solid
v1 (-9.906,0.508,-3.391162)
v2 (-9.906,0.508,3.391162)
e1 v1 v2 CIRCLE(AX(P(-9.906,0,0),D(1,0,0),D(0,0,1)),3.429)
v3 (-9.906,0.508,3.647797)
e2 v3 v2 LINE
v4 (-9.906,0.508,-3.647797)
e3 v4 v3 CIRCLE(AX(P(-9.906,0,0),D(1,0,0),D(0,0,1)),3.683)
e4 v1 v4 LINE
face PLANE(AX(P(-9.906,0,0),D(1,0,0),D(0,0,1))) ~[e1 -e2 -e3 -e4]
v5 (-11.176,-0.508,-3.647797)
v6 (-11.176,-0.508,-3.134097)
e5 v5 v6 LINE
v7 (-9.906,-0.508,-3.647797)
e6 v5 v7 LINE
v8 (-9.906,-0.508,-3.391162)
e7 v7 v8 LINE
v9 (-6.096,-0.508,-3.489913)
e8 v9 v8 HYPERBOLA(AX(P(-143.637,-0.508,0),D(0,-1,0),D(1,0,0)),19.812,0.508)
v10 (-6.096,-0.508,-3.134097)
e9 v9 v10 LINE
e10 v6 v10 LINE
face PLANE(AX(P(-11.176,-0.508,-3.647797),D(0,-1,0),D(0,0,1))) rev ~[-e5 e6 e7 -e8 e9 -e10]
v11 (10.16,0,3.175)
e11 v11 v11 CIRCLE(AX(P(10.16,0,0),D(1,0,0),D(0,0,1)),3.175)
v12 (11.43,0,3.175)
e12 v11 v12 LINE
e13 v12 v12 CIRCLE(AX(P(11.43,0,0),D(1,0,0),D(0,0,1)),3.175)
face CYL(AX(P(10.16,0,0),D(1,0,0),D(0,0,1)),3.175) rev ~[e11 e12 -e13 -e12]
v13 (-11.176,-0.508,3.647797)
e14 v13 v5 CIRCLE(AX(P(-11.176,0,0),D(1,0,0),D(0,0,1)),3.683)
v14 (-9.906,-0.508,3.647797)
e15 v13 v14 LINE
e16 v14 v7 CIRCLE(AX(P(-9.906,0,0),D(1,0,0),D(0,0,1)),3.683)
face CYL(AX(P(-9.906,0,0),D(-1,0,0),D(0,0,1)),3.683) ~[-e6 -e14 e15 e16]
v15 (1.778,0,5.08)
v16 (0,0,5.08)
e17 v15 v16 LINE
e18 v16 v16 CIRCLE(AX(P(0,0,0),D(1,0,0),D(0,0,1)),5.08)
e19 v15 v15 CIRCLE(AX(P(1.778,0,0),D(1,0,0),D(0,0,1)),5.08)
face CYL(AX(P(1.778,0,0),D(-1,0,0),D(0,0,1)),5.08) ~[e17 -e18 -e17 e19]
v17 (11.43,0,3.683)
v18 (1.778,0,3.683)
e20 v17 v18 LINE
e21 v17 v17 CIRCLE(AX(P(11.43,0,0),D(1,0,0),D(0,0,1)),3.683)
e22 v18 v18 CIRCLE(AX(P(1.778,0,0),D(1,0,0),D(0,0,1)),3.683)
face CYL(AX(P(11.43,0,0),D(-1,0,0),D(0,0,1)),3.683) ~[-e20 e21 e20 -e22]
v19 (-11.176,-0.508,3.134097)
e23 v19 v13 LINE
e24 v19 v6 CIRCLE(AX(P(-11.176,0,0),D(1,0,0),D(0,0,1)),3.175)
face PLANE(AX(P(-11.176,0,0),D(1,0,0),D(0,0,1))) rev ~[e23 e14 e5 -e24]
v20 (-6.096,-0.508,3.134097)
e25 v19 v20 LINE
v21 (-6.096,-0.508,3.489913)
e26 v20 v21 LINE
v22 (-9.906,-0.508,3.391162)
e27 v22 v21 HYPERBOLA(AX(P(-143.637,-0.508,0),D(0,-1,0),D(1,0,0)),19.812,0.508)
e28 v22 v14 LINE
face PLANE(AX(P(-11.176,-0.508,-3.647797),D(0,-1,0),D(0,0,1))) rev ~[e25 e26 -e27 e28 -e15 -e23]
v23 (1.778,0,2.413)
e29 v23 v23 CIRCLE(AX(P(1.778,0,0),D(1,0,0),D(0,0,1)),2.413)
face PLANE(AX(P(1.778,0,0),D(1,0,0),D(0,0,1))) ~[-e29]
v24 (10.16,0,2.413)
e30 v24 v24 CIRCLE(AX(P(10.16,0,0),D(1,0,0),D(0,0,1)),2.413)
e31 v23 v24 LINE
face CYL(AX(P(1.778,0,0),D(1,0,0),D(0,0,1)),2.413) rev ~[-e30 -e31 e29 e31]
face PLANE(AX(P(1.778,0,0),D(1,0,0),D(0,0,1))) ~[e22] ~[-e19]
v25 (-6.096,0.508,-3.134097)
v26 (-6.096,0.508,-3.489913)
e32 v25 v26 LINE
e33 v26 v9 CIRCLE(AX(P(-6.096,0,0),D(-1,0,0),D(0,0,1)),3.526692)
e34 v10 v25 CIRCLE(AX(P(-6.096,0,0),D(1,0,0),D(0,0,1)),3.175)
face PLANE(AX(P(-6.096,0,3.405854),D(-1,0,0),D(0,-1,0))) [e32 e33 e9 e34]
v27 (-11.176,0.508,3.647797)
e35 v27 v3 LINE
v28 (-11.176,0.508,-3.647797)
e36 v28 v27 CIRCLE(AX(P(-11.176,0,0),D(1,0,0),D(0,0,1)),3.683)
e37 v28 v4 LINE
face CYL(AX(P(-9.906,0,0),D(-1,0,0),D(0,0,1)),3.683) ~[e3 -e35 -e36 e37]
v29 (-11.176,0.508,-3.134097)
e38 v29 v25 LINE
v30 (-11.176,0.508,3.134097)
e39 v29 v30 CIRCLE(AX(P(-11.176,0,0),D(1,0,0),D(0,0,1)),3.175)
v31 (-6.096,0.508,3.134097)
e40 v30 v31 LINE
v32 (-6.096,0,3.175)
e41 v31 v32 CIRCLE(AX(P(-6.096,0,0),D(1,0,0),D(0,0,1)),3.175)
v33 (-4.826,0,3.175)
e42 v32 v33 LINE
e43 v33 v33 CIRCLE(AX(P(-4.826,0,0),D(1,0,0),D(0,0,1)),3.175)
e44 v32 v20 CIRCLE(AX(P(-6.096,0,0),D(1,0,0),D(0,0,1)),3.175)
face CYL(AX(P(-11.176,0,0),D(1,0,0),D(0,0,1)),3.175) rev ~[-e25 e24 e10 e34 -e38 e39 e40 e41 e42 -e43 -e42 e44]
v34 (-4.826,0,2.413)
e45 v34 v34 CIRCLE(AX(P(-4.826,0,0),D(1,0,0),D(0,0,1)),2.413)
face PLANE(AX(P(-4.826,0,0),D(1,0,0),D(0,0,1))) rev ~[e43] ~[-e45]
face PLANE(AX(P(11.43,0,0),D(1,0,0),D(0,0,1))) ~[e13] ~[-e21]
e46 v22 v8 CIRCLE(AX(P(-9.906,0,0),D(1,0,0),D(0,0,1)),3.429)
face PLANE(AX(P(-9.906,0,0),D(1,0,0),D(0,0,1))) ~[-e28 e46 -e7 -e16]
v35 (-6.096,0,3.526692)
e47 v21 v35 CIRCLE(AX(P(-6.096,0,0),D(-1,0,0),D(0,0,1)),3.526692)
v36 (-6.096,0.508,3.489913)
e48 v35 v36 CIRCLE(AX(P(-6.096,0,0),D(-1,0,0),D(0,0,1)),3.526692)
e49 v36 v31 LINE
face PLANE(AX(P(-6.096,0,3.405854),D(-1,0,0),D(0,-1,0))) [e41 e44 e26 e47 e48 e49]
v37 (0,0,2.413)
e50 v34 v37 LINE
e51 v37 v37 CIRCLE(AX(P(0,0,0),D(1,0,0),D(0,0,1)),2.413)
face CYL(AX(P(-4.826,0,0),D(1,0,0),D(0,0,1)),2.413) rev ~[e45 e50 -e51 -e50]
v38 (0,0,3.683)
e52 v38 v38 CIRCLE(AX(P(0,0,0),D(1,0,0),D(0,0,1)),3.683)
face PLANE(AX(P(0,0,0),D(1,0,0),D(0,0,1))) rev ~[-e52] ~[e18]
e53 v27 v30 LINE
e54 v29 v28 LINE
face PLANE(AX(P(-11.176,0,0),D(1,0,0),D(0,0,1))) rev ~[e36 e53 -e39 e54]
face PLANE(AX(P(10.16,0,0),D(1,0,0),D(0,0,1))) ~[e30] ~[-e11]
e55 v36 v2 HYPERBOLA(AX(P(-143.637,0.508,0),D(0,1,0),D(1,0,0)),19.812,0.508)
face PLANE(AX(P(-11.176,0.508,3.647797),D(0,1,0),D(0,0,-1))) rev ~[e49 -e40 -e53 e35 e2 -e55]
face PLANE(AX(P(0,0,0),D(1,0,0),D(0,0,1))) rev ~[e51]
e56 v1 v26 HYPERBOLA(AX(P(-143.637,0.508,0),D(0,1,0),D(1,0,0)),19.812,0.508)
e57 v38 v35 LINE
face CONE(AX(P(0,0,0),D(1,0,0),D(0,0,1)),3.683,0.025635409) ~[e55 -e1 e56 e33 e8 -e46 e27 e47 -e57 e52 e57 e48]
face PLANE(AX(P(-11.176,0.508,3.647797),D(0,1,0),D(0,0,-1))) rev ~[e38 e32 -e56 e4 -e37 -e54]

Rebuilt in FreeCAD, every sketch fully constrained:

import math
import FreeCAD as App
import Part
import Sketcher
from FreeCAD import Vector
Q = App.Units.Quantity

doc = App.newDocument("Part")
body = doc.addObject("PartDesign::Body", "Body")

sketch1 = doc.addObject("Sketcher::SketchObject", "Sketch")
body.addObject(sketch1)
sketch1.AttachmentSupport = (doc.XZ_Plane, [""])
sketch1.MapMode = "FlatFace"
sketch1.addGeometry([
    Part.LineSegment(Vector(0, 2.41, 0), Vector(0, 0, 0)),
    Part.LineSegment(Vector(0, 0, 0), Vector(1.78, 0, 0)),
    Part.LineSegment(Vector(1.78, 0, 0), Vector(1.78, 2.41, 0)),
    Part.LineSegment(Vector(1.78, 2.41, 0), Vector(10.16, 2.41, 0)),
    Part.LineSegment(Vector(10.16, 2.41, 0), Vector(10.16, 3.17, 0)),
    Part.LineSegment(Vector(10.16, 3.17, 0), Vector(11.43, 3.17, 0)),
    Part.LineSegment(Vector(11.43, 3.17, 0), Vector(11.43, 3.68, 0)),
    Part.LineSegment(Vector(11.43, 3.68, 0), Vector(1.78, 3.68, 0)),
    Part.LineSegment(Vector(1.78, 3.68, 0), Vector(1.78, 5.08, 0)),
    Part.LineSegment(Vector(1.78, 5.08, 0), Vector(0, 5.08, 0)),
    Part.LineSegment(Vector(0, 5.08, 0), Vector(0, 3.68, 0)),
    Part.LineSegment(Vector(0, 3.68, 0), Vector(-9.91, 3.43, 0)),
    Part.LineSegment(Vector(-9.91, 3.43, 0), Vector(-9.91, 3.68, 0)),
    Part.LineSegment(Vector(-9.91, 3.68, 0), Vector(-11.18, 3.68, 0)),
    Part.LineSegment(Vector(-11.18, 3.68, 0), Vector(-11.18, 3.17, 0)),
    Part.LineSegment(Vector(-11.18, 3.17, 0), Vector(-4.83, 3.17, 0)),
    Part.LineSegment(Vector(-4.83, 3.17, 0), Vector(-4.83, 2.41, 0)),
    Part.LineSegment(Vector(-4.83, 2.41, 0), Vector(0, 2.41, 0)),
], False)
sketch1.addConstraint([
    Sketcher.Constraint("Coincident", 0, 2, 1, 1),
    Sketcher.Constraint("Coincident", 1, 2, 2, 1),
    Sketcher.Constraint("Coincident", 2, 2, 3, 1),
    Sketcher.Constraint("Coincident", 3, 2, 4, 1),
    Sketcher.Constraint("Coincident", 4, 2, 5, 1),
    Sketcher.Constraint("Coincident", 5, 2, 6, 1),
    Sketcher.Constraint("Coincident", 6, 2, 7, 1),
    Sketcher.Constraint("Coincident", 7, 2, 8, 1),
    Sketcher.Constraint("Coincident", 8, 2, 9, 1),
    Sketcher.Constraint("Coincident", 9, 2, 10, 1),
    Sketcher.Constraint("Coincident", 10, 2, 11, 1),
    Sketcher.Constraint("Coincident", 11, 2, 12, 1),
    Sketcher.Constraint("Coincident", 12, 2, 13, 1),
    Sketcher.Constraint("Coincident", 13, 2, 14, 1),
    Sketcher.Constraint("Coincident", 14, 2, 15, 1),
    Sketcher.Constraint("Coincident", 15, 2, 16, 1),
    Sketcher.Constraint("Coincident", 16, 2, 17, 1),
    Sketcher.Constraint("Coincident", 17, 2, 0, 1),
    Sketcher.Constraint("Vertical", 0),
    Sketcher.Constraint("Horizontal", 1),
    Sketcher.Constraint("Vertical", 2),
    Sketcher.Constraint("Horizontal", 3),
    Sketcher.Constraint("Vertical", 4),
    Sketcher.Constraint("Horizontal", 5),
    Sketcher.Constraint("Vertical", 6),
    Sketcher.Constraint("Horizontal", 7),
    Sketcher.Constraint("Vertical", 8),
    Sketcher.Constraint("Horizontal", 9),
    Sketcher.Constraint("Vertical", 10),
    Sketcher.Constraint("Vertical", 12),
    Sketcher.Constraint("Horizontal", 13),
    Sketcher.Constraint("Vertical", 14),
    Sketcher.Constraint("Horizontal", 15),
    Sketcher.Constraint("Vertical", 16),
    Sketcher.Constraint("Horizontal", 17),
    Sketcher.Constraint("Coincident", 0, 2, -1, 1),
    Sketcher.Constraint("PointOnObject", 9, 2, -2),
    Sketcher.Constraint("Horizontal", 7, 2, 10, 2),
    Sketcher.Constraint("Horizontal", 10, 2, 12, 2),
    Sketcher.Constraint("Horizontal", 5, 2, 14, 2),
    Sketcher.Constraint("Horizontal", 3, 2, 16, 2),
    Sketcher.Constraint("Vertical", 2, 2, 7, 2),
    Sketcher.Constraint("Equal", 5, 13),
    Sketcher.Constraint("DistanceX", 1, 1, 1, 2, Q("0.07 in")),
    Sketcher.Constraint("DistanceX", 3, 1, 3, 2, Q("0.33 in")),
    Sketcher.Constraint("DistanceX", 5, 1, 5, 2, Q("0.05 in")),
    Sketcher.Constraint("DistanceX", 15, 1, 15, 2, Q("0.25 in")),
    Sketcher.Constraint("DistanceX", 17, 1, 17, 2, Q("0.19 in")),
    Sketcher.Constraint("DistanceY", 4, 1, 4, 2, Q("0.03 in")),
    Sketcher.Constraint("DistanceY", 6, 1, 6, 2, Q("0.02 in")),
    Sketcher.Constraint("DistanceY", 12, 1, 12, 2, Q("0.01 in")),
    Sketcher.Constraint("DistanceY", -1, 1, 8, 2, Q("0.2 in")),
    Sketcher.Constraint("DistanceY", 0, 2, 0, 1, Q("0.095 in")),
])
revolution = doc.addObject("PartDesign::Revolution", "Revolution")
body.addObject(revolution)
revolution.Profile = sketch1
revolution.ReferenceAxis = (sketch1, ["H_Axis"])
revolution.Angle = 360

sketch2 = doc.addObject("Sketcher::SketchObject", "Sketch001")
body.addObject(sketch2)
sketch2.AttachmentSupport = (doc.YZ_Plane, [""])
sketch2.MapMode = "FlatFace"
sketch2.AttachmentOffset = App.Placement(Vector(0, 0, -0.44 * 25.4), App.Rotation())
sketch2.addGeometry([
    Part.ArcOfCircle(Part.Circle(Vector(0, 0, 0), Vector(0, 0, 1), 3.7), math.radians(82.07), math.radians(97.93)),
    Part.LineSegment(Vector(0.5, 3.6, 0), Vector(0.5, -3.6, 0)),
    Part.ArcOfCircle(Part.Circle(Vector(0, 0, 0), Vector(0, 0, 1), 3.7), math.radians(-97.93), math.radians(-82.07)),
    Part.LineSegment(Vector(-0.5, -3.6, 0), Vector(-0.5, 3.6, 0)),
], False)
sketch2.addConstraint([
    Sketcher.Constraint("Coincident", 0, 1, 1, 1),
    Sketcher.Constraint("Coincident", 1, 2, 2, 2),
    Sketcher.Constraint("Coincident", 2, 1, 3, 1),
    Sketcher.Constraint("Coincident", 3, 2, 0, 2),
    Sketcher.Constraint("Vertical", 1),
    Sketcher.Constraint("Vertical", 3),
    Sketcher.Constraint("Coincident", 0, 3, -1, 1),
    Sketcher.Constraint("Coincident", 2, 3, -1, 1),
    Sketcher.Constraint("Equal", 0, 2),
    Sketcher.Constraint("Horizontal", 1, 2, 2, 1),
    Sketcher.Constraint("Radius", 0, Q("0.145 in")),
    Sketcher.Constraint("DistanceX", -1, 1, 0, 1, Q("0.02 in")),
])
pocket1 = doc.addObject("PartDesign::Pocket", "Pocket")
body.addObject(pocket1)
pocket1.Profile = sketch2
pocket1.Length = Q("0.2 in")
pocket1.Reversed = True

doc.recompute()
